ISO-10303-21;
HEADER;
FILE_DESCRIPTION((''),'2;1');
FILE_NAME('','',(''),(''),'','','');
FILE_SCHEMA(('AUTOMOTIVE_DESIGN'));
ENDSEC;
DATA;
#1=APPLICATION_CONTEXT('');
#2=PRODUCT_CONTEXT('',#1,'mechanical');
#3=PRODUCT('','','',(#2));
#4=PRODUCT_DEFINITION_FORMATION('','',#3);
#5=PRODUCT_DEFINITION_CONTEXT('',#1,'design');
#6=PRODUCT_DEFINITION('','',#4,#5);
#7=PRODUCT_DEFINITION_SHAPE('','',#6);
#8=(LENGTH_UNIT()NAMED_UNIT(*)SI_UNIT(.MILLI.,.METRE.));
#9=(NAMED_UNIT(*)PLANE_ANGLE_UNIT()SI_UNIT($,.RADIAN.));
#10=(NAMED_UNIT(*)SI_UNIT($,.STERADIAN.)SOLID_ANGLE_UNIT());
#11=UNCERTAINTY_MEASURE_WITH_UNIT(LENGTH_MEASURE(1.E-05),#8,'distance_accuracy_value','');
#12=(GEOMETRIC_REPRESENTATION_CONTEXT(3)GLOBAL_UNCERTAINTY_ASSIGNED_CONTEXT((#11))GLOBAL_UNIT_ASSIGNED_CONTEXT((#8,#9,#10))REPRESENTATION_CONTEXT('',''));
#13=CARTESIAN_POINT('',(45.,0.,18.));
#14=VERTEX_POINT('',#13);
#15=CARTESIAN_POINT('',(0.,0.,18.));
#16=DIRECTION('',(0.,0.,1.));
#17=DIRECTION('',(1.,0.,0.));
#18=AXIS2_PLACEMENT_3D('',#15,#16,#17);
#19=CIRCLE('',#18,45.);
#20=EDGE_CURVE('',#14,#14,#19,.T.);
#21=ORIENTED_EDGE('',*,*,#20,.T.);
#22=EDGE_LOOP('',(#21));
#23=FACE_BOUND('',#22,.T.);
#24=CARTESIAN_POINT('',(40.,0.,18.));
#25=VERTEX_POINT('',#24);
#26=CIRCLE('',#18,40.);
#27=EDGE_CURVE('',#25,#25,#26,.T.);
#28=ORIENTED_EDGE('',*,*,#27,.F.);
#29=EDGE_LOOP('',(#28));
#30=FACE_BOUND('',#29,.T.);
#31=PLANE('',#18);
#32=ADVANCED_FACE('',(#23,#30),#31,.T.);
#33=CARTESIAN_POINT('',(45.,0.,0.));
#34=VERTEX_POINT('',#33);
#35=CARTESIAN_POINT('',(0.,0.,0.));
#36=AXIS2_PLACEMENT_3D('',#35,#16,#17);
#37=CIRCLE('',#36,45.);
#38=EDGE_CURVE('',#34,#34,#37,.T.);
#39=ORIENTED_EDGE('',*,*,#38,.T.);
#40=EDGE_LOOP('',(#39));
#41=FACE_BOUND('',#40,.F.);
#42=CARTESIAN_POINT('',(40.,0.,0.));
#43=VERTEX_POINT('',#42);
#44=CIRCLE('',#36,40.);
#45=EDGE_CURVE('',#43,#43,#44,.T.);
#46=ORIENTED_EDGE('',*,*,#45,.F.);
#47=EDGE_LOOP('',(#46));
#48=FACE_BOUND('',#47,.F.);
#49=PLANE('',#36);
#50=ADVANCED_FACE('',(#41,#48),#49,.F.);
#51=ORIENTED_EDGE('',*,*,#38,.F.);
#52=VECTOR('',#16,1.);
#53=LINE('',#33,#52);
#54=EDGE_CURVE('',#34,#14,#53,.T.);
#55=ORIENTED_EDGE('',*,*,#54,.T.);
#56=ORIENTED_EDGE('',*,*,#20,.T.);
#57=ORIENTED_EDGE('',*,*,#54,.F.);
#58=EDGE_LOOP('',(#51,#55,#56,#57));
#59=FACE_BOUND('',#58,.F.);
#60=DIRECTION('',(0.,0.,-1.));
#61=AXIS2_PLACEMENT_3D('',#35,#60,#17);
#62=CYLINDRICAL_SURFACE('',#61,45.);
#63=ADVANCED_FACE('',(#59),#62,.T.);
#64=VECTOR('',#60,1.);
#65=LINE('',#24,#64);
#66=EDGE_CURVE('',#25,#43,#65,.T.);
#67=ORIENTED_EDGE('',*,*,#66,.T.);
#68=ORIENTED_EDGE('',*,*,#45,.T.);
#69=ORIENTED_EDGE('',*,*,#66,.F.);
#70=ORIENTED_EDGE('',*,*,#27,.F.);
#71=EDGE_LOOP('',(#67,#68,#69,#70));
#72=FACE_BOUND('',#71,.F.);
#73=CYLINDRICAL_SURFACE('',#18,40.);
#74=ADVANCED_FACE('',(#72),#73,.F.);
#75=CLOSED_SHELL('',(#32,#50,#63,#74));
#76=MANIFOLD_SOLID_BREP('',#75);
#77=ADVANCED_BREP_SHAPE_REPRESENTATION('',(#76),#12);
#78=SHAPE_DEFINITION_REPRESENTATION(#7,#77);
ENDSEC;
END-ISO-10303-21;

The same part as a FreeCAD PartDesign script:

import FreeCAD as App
import Part
import Sketcher

V = App.Vector

doc = App.newDocument("Part")
params = doc.addObject("Spreadsheet::Sheet", "Params")
for row, (alias, value) in enumerate([
    ("sketch1_diameter", "90 mm"),
    ("pad1_length", "18 mm"),
    ("sketch2_diameter", "80 mm"),
    ("pocket1_length", "18 mm"),
], start=1):
    params.set(f"A{row}", alias)
    params.set(f"B{row}", "=" + value)
    params.setAlias(f"B{row}", alias)

body = doc.addObject("PartDesign::Body", "Body")

# Sketch on XY plane
sketch1 = body.newObject("Sketcher::SketchObject", "Sketch")
sketch1.AttachmentSupport = (doc.getObject("XY_Plane"), [""])
sketch1.MapMode = "FlatFace"
sketch1.addGeometry(Part.Circle(V(0, 0, 0), V(0, 0, 1), 45), False)
sketch1.addConstraint([
    Sketcher.Constraint("Coincident", 0, 3, -1, 1),
    Sketcher.Constraint("Diameter", 0, 90.0),
])
sketch1.setExpression("Constraints[1]", "Params.sketch1_diameter")
pad1 = body.newObject("PartDesign::Pad", "Pad")
pad1.Profile = sketch1
pad1.setExpression("Length", "Params.pad1_length")

# Sketch on XY plane
sketch2 = body.newObject("Sketcher::SketchObject", "Sketch001")
sketch2.AttachmentSupport = (doc.getObject("XY_Plane"), [""])
sketch2.MapMode = "FlatFace"
sketch2.AttachmentOffset = App.Placement(V(0, 0, 18), App.Rotation())
sketch2.addGeometry(Part.Circle(V(0, 0, 0), V(0, 0, 1), 40), False)
sketch2.addConstraint([
    Sketcher.Constraint("Coincident", 0, 3, -1, 1),
    Sketcher.Constraint("Diameter", 0, 80.0),
])
sketch2.setExpression("Constraints[1]", "Params.sketch2_diameter")
pocket1 = body.newObject("PartDesign::Pocket", "Pocket")
pocket1.Profile = sketch2
pocket1.setExpression("Length", "Params.pocket1_length")

doc.recompute()
